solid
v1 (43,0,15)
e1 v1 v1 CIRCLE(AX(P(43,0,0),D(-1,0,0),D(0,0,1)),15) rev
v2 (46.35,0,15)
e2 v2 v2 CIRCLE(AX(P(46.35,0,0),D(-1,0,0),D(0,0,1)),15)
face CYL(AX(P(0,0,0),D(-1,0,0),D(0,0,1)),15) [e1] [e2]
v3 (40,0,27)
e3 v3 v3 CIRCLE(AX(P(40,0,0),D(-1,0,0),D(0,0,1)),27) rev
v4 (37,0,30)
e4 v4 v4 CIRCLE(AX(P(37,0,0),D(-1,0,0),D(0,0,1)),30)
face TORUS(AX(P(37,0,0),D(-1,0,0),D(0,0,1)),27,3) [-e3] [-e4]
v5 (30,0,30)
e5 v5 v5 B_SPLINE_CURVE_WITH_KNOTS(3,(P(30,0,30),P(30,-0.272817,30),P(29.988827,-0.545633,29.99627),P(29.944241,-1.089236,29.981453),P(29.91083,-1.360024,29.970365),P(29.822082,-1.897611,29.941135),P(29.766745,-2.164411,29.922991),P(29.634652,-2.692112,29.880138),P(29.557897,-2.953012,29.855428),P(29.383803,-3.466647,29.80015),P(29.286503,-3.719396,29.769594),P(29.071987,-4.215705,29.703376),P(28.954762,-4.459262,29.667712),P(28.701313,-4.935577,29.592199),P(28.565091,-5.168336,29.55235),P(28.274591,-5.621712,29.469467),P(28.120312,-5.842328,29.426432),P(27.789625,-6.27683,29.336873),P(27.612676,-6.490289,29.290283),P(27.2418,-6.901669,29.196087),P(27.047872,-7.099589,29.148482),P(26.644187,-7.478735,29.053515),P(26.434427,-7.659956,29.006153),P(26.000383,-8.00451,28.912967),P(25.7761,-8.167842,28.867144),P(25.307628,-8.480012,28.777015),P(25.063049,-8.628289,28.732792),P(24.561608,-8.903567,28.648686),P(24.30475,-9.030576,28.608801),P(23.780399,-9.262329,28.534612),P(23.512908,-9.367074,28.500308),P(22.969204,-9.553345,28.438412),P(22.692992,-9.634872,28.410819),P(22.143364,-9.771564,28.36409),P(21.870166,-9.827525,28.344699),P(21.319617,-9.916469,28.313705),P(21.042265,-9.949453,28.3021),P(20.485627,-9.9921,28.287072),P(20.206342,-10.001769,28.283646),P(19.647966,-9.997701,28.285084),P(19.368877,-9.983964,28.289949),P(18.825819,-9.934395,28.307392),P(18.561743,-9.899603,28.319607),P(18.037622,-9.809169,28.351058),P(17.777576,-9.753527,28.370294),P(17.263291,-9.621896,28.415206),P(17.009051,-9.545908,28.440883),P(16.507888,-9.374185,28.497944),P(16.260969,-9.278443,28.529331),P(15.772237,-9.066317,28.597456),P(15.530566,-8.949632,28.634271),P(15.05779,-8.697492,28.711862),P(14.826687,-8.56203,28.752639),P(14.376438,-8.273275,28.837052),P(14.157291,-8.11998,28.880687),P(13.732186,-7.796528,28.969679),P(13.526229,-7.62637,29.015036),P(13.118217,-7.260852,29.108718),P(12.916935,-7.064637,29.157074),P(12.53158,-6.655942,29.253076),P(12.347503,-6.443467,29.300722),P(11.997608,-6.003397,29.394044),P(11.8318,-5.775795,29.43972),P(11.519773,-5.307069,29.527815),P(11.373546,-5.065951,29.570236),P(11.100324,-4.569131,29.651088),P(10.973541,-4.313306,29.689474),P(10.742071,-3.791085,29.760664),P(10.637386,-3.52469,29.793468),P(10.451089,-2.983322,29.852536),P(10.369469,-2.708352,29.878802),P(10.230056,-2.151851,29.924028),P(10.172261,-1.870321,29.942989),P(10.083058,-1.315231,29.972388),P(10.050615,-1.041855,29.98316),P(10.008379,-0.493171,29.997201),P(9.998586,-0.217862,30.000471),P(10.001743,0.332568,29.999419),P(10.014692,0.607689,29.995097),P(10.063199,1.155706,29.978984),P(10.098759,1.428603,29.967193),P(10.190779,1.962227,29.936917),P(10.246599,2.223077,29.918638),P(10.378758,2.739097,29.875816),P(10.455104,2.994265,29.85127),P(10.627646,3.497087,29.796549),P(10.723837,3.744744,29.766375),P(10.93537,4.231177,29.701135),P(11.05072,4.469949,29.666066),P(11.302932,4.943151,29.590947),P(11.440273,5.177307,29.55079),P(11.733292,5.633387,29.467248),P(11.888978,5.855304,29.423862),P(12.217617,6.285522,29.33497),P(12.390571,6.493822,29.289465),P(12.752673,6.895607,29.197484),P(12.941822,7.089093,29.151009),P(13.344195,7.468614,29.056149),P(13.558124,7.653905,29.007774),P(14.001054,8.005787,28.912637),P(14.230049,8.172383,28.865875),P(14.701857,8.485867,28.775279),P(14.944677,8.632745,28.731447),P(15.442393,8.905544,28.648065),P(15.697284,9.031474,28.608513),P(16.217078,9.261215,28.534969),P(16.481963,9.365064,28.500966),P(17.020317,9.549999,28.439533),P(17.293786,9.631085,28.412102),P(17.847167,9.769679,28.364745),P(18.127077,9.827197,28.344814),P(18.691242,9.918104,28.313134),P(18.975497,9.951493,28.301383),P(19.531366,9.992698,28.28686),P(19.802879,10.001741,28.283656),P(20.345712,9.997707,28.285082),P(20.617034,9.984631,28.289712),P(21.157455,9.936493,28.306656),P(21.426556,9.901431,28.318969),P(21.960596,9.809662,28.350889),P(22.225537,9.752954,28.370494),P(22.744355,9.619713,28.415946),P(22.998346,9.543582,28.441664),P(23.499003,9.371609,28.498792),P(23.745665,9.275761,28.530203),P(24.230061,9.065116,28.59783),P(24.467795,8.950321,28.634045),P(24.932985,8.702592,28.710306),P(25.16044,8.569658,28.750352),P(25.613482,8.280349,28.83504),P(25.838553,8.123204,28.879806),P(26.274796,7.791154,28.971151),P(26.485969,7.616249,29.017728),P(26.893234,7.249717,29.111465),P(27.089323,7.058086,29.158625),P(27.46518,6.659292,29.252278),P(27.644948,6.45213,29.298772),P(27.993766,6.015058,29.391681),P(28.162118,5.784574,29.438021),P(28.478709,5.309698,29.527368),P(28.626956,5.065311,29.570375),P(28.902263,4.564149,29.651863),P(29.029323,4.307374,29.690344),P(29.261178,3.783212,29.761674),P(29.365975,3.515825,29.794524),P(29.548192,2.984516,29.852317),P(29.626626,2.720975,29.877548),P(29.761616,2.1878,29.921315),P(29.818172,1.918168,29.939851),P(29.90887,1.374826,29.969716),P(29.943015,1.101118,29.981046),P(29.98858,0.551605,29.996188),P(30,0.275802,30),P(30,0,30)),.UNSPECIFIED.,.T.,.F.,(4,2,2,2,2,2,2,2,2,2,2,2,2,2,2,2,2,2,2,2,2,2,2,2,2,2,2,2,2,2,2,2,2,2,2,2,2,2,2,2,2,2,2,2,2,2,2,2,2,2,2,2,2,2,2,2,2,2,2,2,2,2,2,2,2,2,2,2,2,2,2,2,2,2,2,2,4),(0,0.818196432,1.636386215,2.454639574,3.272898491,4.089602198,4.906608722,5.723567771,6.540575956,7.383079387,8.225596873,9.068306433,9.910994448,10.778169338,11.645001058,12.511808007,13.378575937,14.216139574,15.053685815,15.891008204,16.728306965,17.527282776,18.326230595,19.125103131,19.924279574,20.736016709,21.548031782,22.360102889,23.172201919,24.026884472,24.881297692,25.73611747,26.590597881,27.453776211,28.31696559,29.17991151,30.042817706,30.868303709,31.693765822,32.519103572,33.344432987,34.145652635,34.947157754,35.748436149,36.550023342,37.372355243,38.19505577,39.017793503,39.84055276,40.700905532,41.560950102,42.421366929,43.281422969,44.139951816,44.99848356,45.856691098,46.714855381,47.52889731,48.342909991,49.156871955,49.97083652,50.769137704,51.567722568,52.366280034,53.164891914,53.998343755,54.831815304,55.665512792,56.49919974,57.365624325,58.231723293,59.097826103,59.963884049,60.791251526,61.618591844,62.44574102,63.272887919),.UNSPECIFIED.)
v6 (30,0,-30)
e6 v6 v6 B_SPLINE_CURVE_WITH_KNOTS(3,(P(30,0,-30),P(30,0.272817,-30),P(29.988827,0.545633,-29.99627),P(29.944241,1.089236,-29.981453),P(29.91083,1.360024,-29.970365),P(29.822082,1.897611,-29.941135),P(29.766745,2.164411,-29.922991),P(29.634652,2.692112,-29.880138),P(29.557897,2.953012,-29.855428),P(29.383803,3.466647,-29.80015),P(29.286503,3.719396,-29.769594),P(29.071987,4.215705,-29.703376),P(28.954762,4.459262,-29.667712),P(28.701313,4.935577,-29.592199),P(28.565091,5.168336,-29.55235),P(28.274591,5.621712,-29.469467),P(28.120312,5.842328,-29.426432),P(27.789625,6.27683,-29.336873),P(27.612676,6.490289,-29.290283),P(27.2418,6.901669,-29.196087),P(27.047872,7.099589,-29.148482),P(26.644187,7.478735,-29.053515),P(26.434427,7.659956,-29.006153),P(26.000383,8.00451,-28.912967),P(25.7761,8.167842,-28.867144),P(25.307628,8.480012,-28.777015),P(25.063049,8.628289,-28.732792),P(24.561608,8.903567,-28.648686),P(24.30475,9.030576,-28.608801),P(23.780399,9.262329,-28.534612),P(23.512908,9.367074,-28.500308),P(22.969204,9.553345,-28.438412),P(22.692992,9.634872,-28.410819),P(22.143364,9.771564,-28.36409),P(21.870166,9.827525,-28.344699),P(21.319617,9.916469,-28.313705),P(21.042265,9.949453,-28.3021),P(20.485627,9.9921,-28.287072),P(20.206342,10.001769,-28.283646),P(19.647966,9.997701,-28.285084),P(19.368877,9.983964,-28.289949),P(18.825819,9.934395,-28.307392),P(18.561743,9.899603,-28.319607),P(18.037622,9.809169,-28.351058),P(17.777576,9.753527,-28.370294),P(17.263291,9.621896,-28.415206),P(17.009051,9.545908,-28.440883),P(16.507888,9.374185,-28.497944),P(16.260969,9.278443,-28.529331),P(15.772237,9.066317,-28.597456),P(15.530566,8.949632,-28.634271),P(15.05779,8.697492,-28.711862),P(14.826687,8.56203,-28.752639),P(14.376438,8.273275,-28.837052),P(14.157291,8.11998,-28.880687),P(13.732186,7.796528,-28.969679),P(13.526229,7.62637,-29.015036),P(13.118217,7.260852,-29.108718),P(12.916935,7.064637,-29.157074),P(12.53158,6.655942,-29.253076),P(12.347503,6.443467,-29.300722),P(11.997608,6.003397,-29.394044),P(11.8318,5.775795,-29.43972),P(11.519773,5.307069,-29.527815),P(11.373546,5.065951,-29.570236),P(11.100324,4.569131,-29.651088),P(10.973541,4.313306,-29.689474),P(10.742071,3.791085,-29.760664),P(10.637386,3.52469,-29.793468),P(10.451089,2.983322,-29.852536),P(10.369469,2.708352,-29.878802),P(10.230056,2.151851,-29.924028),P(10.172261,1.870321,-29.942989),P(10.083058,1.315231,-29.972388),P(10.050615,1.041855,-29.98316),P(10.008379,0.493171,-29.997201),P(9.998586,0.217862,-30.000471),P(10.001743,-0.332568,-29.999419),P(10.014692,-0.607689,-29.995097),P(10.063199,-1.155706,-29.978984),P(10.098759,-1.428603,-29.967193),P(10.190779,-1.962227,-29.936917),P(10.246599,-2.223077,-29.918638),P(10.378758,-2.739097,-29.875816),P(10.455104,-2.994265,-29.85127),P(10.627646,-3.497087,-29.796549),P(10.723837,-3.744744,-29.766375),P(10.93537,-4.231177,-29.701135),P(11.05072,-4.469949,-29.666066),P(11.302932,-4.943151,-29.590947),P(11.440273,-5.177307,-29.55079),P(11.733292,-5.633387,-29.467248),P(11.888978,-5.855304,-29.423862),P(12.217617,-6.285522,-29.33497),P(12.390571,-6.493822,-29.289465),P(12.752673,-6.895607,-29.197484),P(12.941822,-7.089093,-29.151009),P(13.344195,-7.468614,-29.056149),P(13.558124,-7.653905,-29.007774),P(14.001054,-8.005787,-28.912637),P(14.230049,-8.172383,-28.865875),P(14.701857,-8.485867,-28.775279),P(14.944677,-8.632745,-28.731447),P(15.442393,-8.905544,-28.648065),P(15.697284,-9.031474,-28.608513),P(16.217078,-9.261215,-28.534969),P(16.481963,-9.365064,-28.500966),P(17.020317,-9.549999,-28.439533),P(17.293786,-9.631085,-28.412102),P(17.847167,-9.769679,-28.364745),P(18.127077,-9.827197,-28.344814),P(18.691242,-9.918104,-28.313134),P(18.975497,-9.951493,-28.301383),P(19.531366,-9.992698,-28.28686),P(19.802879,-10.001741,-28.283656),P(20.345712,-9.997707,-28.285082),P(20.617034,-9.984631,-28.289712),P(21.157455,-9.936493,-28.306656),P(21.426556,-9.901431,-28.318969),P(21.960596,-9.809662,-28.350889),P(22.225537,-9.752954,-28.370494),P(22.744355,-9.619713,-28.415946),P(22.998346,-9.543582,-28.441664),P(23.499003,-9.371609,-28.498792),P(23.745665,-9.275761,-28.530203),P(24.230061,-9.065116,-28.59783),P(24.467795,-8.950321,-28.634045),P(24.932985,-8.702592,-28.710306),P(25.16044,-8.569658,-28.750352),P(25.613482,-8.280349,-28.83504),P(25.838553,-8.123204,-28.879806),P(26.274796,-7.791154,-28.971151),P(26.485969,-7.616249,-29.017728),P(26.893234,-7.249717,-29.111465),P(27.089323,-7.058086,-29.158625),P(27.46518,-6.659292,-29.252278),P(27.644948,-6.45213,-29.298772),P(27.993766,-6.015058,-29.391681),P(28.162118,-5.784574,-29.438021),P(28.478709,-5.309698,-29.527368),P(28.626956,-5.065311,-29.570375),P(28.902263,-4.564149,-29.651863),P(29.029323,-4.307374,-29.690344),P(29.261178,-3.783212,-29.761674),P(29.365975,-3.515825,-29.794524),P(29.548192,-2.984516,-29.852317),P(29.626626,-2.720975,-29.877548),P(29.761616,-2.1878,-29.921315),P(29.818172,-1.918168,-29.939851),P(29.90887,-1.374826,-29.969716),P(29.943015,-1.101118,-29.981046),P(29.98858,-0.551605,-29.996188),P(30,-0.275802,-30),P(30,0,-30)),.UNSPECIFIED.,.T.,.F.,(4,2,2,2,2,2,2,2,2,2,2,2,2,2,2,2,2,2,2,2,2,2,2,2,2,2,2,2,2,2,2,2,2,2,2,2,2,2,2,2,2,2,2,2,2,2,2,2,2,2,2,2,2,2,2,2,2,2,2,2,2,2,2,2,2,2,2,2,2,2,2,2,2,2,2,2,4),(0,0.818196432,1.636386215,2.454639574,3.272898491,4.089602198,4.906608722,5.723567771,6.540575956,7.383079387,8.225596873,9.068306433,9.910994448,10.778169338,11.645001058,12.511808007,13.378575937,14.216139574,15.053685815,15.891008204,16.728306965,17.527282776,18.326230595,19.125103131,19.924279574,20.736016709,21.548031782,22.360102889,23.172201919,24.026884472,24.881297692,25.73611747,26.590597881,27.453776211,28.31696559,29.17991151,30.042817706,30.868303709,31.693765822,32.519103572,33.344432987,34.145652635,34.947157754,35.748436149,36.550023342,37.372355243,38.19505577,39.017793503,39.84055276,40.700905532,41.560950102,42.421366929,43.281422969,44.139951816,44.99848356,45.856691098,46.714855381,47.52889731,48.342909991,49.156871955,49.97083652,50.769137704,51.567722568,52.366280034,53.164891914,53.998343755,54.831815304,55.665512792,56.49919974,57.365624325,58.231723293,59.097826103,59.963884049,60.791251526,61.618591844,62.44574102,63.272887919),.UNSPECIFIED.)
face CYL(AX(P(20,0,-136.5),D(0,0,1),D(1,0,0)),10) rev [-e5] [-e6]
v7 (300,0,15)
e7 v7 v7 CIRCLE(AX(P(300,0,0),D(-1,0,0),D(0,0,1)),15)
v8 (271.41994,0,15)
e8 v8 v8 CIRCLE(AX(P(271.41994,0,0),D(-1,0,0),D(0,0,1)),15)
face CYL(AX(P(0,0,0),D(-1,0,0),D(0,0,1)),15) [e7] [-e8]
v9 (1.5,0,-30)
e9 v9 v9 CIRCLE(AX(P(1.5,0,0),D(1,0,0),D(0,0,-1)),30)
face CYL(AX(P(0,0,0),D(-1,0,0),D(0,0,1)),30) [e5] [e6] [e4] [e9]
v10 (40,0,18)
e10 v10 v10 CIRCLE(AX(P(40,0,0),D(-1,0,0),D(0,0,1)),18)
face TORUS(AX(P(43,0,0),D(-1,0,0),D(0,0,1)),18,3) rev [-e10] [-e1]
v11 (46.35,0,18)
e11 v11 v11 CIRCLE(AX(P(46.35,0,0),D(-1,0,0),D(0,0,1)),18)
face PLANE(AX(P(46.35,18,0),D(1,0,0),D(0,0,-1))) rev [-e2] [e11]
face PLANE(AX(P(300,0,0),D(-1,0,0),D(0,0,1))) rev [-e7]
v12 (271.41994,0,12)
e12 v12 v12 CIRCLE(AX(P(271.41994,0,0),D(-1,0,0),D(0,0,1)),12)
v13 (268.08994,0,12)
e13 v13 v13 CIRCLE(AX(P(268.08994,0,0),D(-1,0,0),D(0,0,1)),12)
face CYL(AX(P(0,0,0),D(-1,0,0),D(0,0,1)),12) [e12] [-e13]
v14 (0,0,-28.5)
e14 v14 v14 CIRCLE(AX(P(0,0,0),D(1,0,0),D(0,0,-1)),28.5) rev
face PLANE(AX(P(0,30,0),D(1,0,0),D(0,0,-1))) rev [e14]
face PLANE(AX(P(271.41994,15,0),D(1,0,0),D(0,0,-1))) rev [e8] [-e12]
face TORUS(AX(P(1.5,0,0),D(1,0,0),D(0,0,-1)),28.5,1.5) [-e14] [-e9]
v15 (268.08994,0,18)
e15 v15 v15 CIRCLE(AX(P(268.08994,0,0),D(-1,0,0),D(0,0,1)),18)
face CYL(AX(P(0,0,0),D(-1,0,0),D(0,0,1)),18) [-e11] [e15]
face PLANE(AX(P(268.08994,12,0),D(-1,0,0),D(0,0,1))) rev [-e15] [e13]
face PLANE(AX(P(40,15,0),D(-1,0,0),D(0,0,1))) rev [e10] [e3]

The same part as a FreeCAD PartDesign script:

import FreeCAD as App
import Part
import Sketcher
from FreeCAD import Vector


def edges_at(feature, points):
    """Names of the edges that pass closest to the given points."""
    edges = feature.Shape.Edges
    near = lambda p: min(range(len(edges)), key=lambda i: edges[i].distToShape(Part.Vertex(*p))[0])
    return sorted({f"Edge{near(p) + 1}" for p in points})

doc = App.newDocument("Part")
params = doc.addObject("Spreadsheet::Sheet", "Params")
for row, (alias, value) in enumerate([
    ("sketch1_width", "300 mm"),
    ("sketch1_width2", "40 mm"),
    ("sketch1_height", "15 mm"),
    ("sketch1_height2", "3 mm"),
    ("sketch1_width3", "3.33 mm"),
    ("revolution_angle", "360 deg"),
    ("fillet_radius", "1.5 mm"),
    ("sketch2_diameter", "20 mm"),
    ("pocket1_length", "273 mm"),
    ("fillet2_radius", "3 mm"),
    ("fillet3_radius", "3 mm"),
], start=1):
    params.set(f"A{row}", alias)
    params.set(f"B{row}", "=" + value)
    params.setAlias(f"B{row}", alias)

body = doc.addObject("PartDesign::Body", "Body")

sketch1 = doc.addObject("Sketcher::SketchObject", "Sketch")
body.addObject(sketch1)
sketch1.AttachmentSupport = (doc.XY_Plane, [""])
sketch1.MapMode = "FlatFace"
sketch1.addGeometry([
    Part.LineSegment(Vector(0, 0, 0), Vector(300, 0, 0)),
    Part.LineSegment(Vector(300, 0, 0), Vector(300, 15, 0)),
    Part.LineSegment(Vector(300, 15, 0), Vector(271.4, 15, 0)),
    Part.LineSegment(Vector(271.4, 15, 0), Vector(271.4, 12, 0)),
    Part.LineSegment(Vector(271.4, 12, 0), Vector(268.1, 12, 0)),
    Part.LineSegment(Vector(268.1, 12, 0), Vector(268.1, 18, 0)),
    Part.LineSegment(Vector(268.1, 18, 0), Vector(46.4, 18, 0)),
    Part.LineSegment(Vector(46.4, 18, 0), Vector(46.4, 15, 0)),
    Part.LineSegment(Vector(46.4, 15, 0), Vector(40, 15, 0)),
    Part.LineSegment(Vector(40, 15, 0), Vector(40, 30, 0)),
    Part.LineSegment(Vector(40, 30, 0), Vector(0, 30, 0)),
    Part.LineSegment(Vector(0, 30, 0), Vector(0, 0, 0)),
], False)
sketch1.addConstraint([
    Sketcher.Constraint("Coincident", 0, 2, 1, 1),
    Sketcher.Constraint("Coincident", 1, 2, 2, 1),
    Sketcher.Constraint("Coincident", 2, 2, 3, 1),
    Sketcher.Constraint("Coincident", 3, 2, 4, 1),
    Sketcher.Constraint("Coincident", 4, 2, 5, 1),
    Sketcher.Constraint("Coincident", 5, 2, 6, 1),
    Sketcher.Constraint("Coincident", 6, 2, 7, 1),
    Sketcher.Constraint("Coincident", 7, 2, 8, 1),
    Sketcher.Constraint("Coincident", 8, 2, 9, 1),
    Sketcher.Constraint("Coincident", 9, 2, 10, 1),
    Sketcher.Constraint("Coincident", 10, 2, 11, 1),
    Sketcher.Constraint("Coincident", 11, 2, 0, 1),
    Sketcher.Constraint("Horizontal", 0),
    Sketcher.Constraint("Vertical", 1),
    Sketcher.Constraint("Horizontal", 2),
    Sketcher.Constraint("Vertical", 3),
    Sketcher.Constraint("Horizontal", 4),
    Sketcher.Constraint("Vertical", 5),
    Sketcher.Constraint("Horizontal", 6),
    Sketcher.Constraint("Vertical", 7),
    Sketcher.Constraint("Horizontal", 8),
    Sketcher.Constraint("Vertical", 9),
    Sketcher.Constraint("Horizontal", 10),
    Sketcher.Constraint("Vertical", 11),
    Sketcher.Constraint("Coincident", 11, 2, -1, 1),
    Sketcher.Constraint("Horizontal", 2, 2, 7, 2),
    Sketcher.Constraint("Equal", 3, 7),
    Sketcher.Constraint("Equal", 1, 9),
    Sketcher.Constraint("DistanceX", 0, 1, 0, 2, 300.0),
    Sketcher.Constraint("DistanceX", 10, 2, 10, 1, 40.0),
    Sketcher.Constraint("DistanceY", 1, 1, 1, 2, 15.0),
    Sketcher.Constraint("DistanceY", 3, 2, 3, 1, 3.0),
    Sketcher.Constraint("DistanceX", 4, 2, 4, 1, 3.33),
    Sketcher.Constraint("DistanceX", 8, 2, 8, 1, 6.35),
    Sketcher.Constraint("DistanceX", 2, 2, 2, 1, 28.58006),
])
sketch1.setExpression("Constraints[28]", "Params.sketch1_width")
sketch1.setExpression("Constraints[29]", "Params.sketch1_width2")
sketch1.setExpression("Constraints[30]", "Params.sketch1_height")
sketch1.setExpression("Constraints[31]", "Params.sketch1_height2")
sketch1.setExpression("Constraints[32]", "Params.sketch1_width3")
revolution = doc.addObject("PartDesign::Revolution", "Revolution")
body.addObject(revolution)
revolution.Profile = sketch1
revolution.ReferenceAxis = (sketch1, ["H_Axis"])
revolution.setExpression("Angle", "Params.revolution_angle")
doc.recompute()

fillet = doc.addObject("PartDesign::Fillet", "Fillet")
body.addObject(fillet)
fillet.Base = (revolution, edges_at(revolution, [(0, 0, -30)]))
fillet.setExpression("Radius", "Params.fillet_radius")

sketch2 = doc.addObject("Sketcher::SketchObject", "Sketch001")
body.addObject(sketch2)
sketch2.AttachmentSupport = (doc.XY_Plane, [""])
sketch2.MapMode = "FlatFace"
sketch2.addGeometry(Part.Circle(Vector(20, 0, 0), Vector(0, 0, 1), 10), False)
sketch2.addConstraint([
    Sketcher.Constraint("PointOnObject", 0, 3, -1),
    Sketcher.Constraint("Diameter", 0, 20.0),
    Sketcher.Constraint("DistanceX", -1, 1, 0, 3, 20.0),
])
sketch2.setExpression("Constraints[1]", "Params.sketch2_diameter")
pocket1 = doc.addObject("PartDesign::Pocket", "Pocket")
body.addObject(pocket1)
pocket1.Profile = sketch2
pocket1.setExpression("Length", "Params.pocket1_length")
pocket1.Midplane = True
doc.recompute()

fillet2 = doc.addObject("PartDesign::Fillet", "Fillet001")
body.addObject(fillet2)
fillet2.Base = (pocket1, edges_at(pocket1, [(40, 0, -15)]))
fillet2.setExpression("Radius", "Params.fillet2_radius")
doc.recompute()

fillet3 = doc.addObject("PartDesign::Fillet", "Fillet002")
body.addObject(fillet3)
fillet3.Base = (fillet2, edges_at(fillet2, [(40, 0, -30)]))
fillet3.setExpression("Radius", "Params.fillet3_radius")

doc.recompute()
